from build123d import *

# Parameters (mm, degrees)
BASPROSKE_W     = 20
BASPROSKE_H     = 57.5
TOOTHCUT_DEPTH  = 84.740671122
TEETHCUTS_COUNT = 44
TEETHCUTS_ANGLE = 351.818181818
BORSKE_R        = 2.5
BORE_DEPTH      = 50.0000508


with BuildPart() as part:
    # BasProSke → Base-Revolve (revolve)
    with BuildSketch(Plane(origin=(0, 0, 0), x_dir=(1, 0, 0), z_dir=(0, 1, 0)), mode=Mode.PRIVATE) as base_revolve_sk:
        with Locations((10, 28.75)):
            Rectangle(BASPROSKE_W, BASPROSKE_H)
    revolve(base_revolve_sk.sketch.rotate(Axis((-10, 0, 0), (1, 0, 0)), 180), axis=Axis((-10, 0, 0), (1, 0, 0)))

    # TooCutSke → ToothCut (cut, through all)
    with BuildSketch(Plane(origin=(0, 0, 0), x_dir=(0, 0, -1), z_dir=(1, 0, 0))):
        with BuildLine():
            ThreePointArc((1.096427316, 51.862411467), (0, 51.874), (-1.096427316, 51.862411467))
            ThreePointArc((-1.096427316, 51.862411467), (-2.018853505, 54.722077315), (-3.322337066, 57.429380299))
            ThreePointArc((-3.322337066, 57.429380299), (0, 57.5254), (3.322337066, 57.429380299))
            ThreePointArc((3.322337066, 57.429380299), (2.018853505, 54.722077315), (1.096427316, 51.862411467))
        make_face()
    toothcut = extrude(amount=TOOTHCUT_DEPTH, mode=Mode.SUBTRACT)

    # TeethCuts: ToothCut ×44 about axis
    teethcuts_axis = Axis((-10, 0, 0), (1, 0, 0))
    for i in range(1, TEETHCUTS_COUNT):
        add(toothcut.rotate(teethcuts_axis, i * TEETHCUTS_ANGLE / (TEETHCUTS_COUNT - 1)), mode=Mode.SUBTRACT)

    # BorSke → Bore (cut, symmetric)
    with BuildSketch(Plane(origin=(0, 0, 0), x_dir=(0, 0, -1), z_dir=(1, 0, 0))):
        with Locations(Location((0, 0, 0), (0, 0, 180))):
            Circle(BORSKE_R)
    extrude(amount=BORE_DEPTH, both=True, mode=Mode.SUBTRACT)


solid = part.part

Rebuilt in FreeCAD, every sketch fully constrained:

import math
import FreeCAD as App
import Part
import Sketcher

V = App.Vector

doc = App.newDocument("Part")
body = doc.addObject("PartDesign::Body", "Body")

# Sketch on XZ plane
sketch1 = body.newObject("Sketcher::SketchObject", "Sketch")
sketch1.AttachmentSupport = (doc.getObject("XZ_Plane"), [""])
sketch1.MapMode = "FlatFace"
sketch1.addGeometry(Part.LineSegment(V(0, -57.5, 0), V(0, 0, 0)), False)
sketch1.addGeometry(Part.LineSegment(V(0, 0, 0), V(20, 0, 0)), False)
sketch1.addGeometry(Part.LineSegment(V(20, 0, 0), V(20, -57.5, 0)), False)
sketch1.addGeometry(Part.LineSegment(V(20, -57.5, 0), V(0, -57.5, 0)), False)
sketch1.addConstraint(Sketcher.Constraint("Coincident", 0, 2, 1, 1))
sketch1.addConstraint(Sketcher.Constraint("Coincident", 1, 2, 2, 1))
sketch1.addConstraint(Sketcher.Constraint("Coincident", 2, 2, 3, 1))
sketch1.addConstraint(Sketcher.Constraint("Coincident", 3, 2, 0, 1))
sketch1.addConstraint(Sketcher.Constraint("Vertical", 0))
sketch1.addConstraint(Sketcher.Constraint("Horizontal", 1))
sketch1.addConstraint(Sketcher.Constraint("Vertical", 2))
sketch1.addConstraint(Sketcher.Constraint("Horizontal", 3))
sketch1.addConstraint(Sketcher.Constraint("Coincident", 0, 2, -1, 1))
sketch1.addConstraint(Sketcher.Constraint("DistanceX", 1, 1, 1, 2, 20.0))
sketch1.addConstraint(Sketcher.Constraint("DistanceY", 0, 1, 0, 2, 57.5))
revolution = body.newObject("PartDesign::Revolution", "Revolution")
revolution.Profile = sketch1
revolution.ReferenceAxis = (sketch1, ["H_Axis"])
revolution.Angle = 360

# Sketch on YZ plane
sketch2 = body.newObject("Sketcher::SketchObject", "Sketch001")
sketch2.AttachmentSupport = (doc.getObject("YZ_Plane"), [""])
sketch2.MapMode = "FlatFace"
sketch2.addGeometry(Part.ArcOfCircle(Part.Circle(V(-0.000001, 0, 0), V(0, 0, 1), 51.874001), math.radians(-1.211114), math.radians(1.211114)), False)
sketch2.addGeometry(Part.ArcOfCircle(Part.Circle(V(46.554259, -22.446451, 0), V(0, 0, 1), 22), math.radians(60.374837), math.radians(76.037921)), False)
sketch2.addGeometry(Part.ArcOfCircle(Part.Circle(V(0, 0, 0), V(0, 0, 1), 57.5254), math.radians(-3.310918), math.radians(3.310918)), False)
sketch2.addGeometry(Part.ArcOfCircle(Part.Circle(V(46.554259, 22.446451, 0), V(0, 0, 1), 22), math.radians(-76.037921), math.radians(-60.374837)), False)
sketch2.addConstraint(Sketcher.Constraint("Coincident", 0, 1, 1, 2))
sketch2.addConstraint(Sketcher.Constraint("Coincident", 1, 1, 2, 1))
sketch2.addConstraint(Sketcher.Constraint("Coincident", 2, 2, 3, 2))
sketch2.addConstraint(Sketcher.Constraint("Coincident", 3, 1, 0, 2))
sketch2.addConstraint(Sketcher.Constraint("Coincident", 0, 3, -1, 1))
sketch2.addConstraint(Sketcher.Constraint("Coincident", 2, 3, -1, 1))
sketch2.addConstraint(Sketcher.Constraint("Equal", 1, 3))
sketch2.addConstraint(Sketcher.Constraint("Symmetric", 1, 3, 3, 3, -1))
sketch2.addConstraint(Sketcher.Constraint("Radius", 1, 22.0))
sketch2.addConstraint(Sketcher.Constraint("Radius", 0, 51.874001))
sketch2.addConstraint(Sketcher.Constraint("Radius", 2, 57.5254))
sketch2.addConstraint(Sketcher.Constraint("DistanceX", -1, 1, 1, 3, 46.554259))
sketch2.addConstraint(Sketcher.Constraint("DistanceY", 1, 3, -1, 1, 22.446451))
pocket1 = body.newObject("PartDesign::Pocket", "Pocket")
pocket1.Profile = sketch2
pocket1.Type = "ThroughAll"
pocket1.Reversed = True
doc.recompute()

polarpattern = body.newObject("PartDesign::PolarPattern", "PolarPattern")
polarpattern.Originals = [pocket1]
polarpattern.Axis = (doc.getObject("X_Axis"), [""])
polarpattern.Angle = 360
polarpattern.Occurrences = 44
body.Tip = polarpattern

# Sketch on YZ plane
sketch3 = body.newObject("Sketcher::SketchObject", "Sketch002")
sketch3.AttachmentSupport = (doc.getObject("YZ_Plane"), [""])
sketch3.MapMode = "FlatFace"
sketch3.addGeometry(Part.Circle(V(0, 0, 0), V(0, 0, 1), 2.5), False)
sketch3.addConstraint(Sketcher.Constraint("Coincident", 0, 3, -1, 1))
sketch3.addConstraint(Sketcher.Constraint("Diameter", 0, 5.0))
pocket2 = body.newObject("PartDesign::Pocket", "Pocket001")
pocket2.Profile = sketch3
pocket2.Length = 100.000102
pocket2.Midplane = True

doc.recompute()
